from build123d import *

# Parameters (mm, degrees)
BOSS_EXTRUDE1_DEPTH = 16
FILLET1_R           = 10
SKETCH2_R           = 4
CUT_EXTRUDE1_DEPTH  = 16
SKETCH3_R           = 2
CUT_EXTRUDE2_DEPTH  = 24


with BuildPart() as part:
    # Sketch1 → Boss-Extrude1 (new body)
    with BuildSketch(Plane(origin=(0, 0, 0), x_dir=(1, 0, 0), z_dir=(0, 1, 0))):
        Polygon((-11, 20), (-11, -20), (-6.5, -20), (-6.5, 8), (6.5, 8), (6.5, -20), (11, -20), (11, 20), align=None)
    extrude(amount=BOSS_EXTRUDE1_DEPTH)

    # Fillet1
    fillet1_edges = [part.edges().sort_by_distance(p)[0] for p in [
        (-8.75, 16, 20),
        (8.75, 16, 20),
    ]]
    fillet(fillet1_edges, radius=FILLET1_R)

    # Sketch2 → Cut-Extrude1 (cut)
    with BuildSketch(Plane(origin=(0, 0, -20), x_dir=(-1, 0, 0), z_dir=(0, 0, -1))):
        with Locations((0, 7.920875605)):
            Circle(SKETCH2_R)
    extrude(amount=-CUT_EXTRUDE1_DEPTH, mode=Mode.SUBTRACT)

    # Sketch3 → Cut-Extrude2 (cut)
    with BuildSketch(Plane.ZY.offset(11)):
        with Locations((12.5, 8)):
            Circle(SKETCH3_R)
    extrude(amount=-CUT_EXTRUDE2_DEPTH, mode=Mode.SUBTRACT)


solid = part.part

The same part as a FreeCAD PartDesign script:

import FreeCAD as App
import Part
import Sketcher

V = App.Vector
Q = App.Units.Quantity


def edges_at(feature, points):
    """Names of the edges that pass closest to the given points."""
    edges = feature.Shape.Edges
    near = lambda p: min(range(len(edges)), key=lambda i: edges[i].distToShape(Part.Vertex(*p))[0])
    return sorted({f"Edge{near(p) + 1}" for p in points})


def add_polygon(sketch, points):
    """Adds a closed chain of lines whose ends are joined by coincident constraints."""
    first, n = sketch.GeometryCount, len(points)
    for a, b in zip(points, points[1:] + points[:1]):
        sketch.addGeometry(Part.LineSegment(App.Vector(*a, 0), App.Vector(*b, 0)), False)
    for i in range(n):
        sketch.addConstraint(Sketcher.Constraint("Coincident", first + i, 2, first + (i + 1) % n, 1))

doc = App.newDocument("Part")
params = doc.addObject("Spreadsheet::Sheet", "Params")
for row, (alias, value) in enumerate([
    ("sketch1_width", "13 mm"),
    ("sketch1_width2", "22 mm"),
    ("sketch1_height", "40 mm"),
    ("sketch1_height2", "28 mm"),
    ("pad1_length", "16 mm"),
    ("fillet_radius", "10 mm"),
    ("sketch2_diameter", "8 mm"),
    ("pocket1_length", "16 mm"),
    ("sketch3_diameter", "4 mm"),
    ("pocket2_length", "24 mm"),
], start=1):
    params.set(f"A{row}", alias)
    params.set(f"B{row}", "=" + value)
    params.setAlias(f"B{row}", alias)

body = doc.addObject("PartDesign::Body", "Body")

sketch1 = doc.addObject("Sketcher::SketchObject", "Sketch")
body.addObject(sketch1)
sketch1.AttachmentSupport = (doc.XZ_Plane, [""])
sketch1.MapMode = "FlatFace"
add_polygon(sketch1, [(-11, -20), (-11, 20), (-6.5, 20), (-6.5, -8), (6.5, -8), (6.5, 20), (11, 20), (11, -20)])
sketch1.addConstraint(Sketcher.Constraint("Vertical", 0))
sketch1.addConstraint(Sketcher.Constraint("Horizontal", 1))
sketch1.addConstraint(Sketcher.Constraint("Vertical", 2))
sketch1.addConstraint(Sketcher.Constraint("Horizontal", 3))
sketch1.addConstraint(Sketcher.Constraint("Vertical", 4))
sketch1.addConstraint(Sketcher.Constraint("Horizontal", 5))
sketch1.addConstraint(Sketcher.Constraint("Vertical", 6))
sketch1.addConstraint(Sketcher.Constraint("Horizontal", 7))
sketch1.addConstraint(Sketcher.Constraint("Symmetric", 0, 2, 6, 2, -1, 1))
sketch1.addConstraint(Sketcher.Constraint("Symmetric", 1, 2, 4, 2, -2))
sketch1.addConstraint(Sketcher.Constraint("DistanceX", 3, 1, 3, 2, Q("13 mm")))
sketch1.addConstraint(Sketcher.Constraint("DistanceX", 7, 2, 7, 1, Q("22 mm")))
sketch1.addConstraint(Sketcher.Constraint("DistanceY", 0, 1, 0, 2, Q("40 mm")))
sketch1.addConstraint(Sketcher.Constraint("DistanceY", 2, 2, 2, 1, Q("28 mm")))
sketch1.setExpression("Constraints[18]", "Params.sketch1_width")
sketch1.setExpression("Constraints[19]", "Params.sketch1_width2")
sketch1.setExpression("Constraints[20]", "Params.sketch1_height")
sketch1.setExpression("Constraints[21]", "Params.sketch1_height2")
pad1 = doc.addObject("PartDesign::Pad", "Pad")
body.addObject(pad1)
pad1.Profile = sketch1
pad1.setExpression("Length", "Params.pad1_length")
pad1.Reversed = True
doc.recompute()

fillet = doc.addObject("PartDesign::Fillet", "Fillet")
body.addObject(fillet)
fillet.Base = (pad1, edges_at(pad1, [(-8.75, 16, 20), (8.75, 16, 20)]))
fillet.setExpression("Radius", "Params.fillet_radius")

sketch2 = doc.addObject("Sketcher::SketchObject", "Sketch001")
body.addObject(sketch2)
sketch2.AttachmentSupport = (doc.XY_Plane, [""])
sketch2.MapMode = "FlatFace"
sketch2.AttachmentOffset = App.Placement(V(0, 0, -20), App.Rotation())
sketch2.addGeometry(Part.Circle(V(0, 7.920876, 0), V(0, 0, 1), 4), False)
sketch2.addConstraint(Sketcher.Constraint("PointOnObject", 0, 3, -2))
sketch2.addConstraint(Sketcher.Constraint("Diameter", 0, Q("8 mm")))
sketch2.addConstraint(Sketcher.Constraint("DistanceY", -1, 1, 0, 3, Q("7.920876 mm")))
sketch2.setExpression("Constraints[1]", "Params.sketch2_diameter")
pocket1 = doc.addObject("PartDesign::Pocket", "Pocket")
body.addObject(pocket1)
pocket1.Profile = sketch2
pocket1.setExpression("Length", "Params.pocket1_length")
pocket1.Reversed = True

sketch3 = doc.addObject("Sketcher::SketchObject", "Sketch002")
body.addObject(sketch3)
sketch3.AttachmentSupport = (doc.YZ_Plane, [""])
sketch3.MapMode = "FlatFace"
sketch3.AttachmentOffset = App.Placement(V(0, 0, -11), App.Rotation())
sketch3.addGeometry(Part.Circle(V(8, 12.5, 0), V(0, 0, 1), 2), False)
sketch3.addConstraint(Sketcher.Constraint("Diameter", 0, Q("4 mm")))
sketch3.addConstraint(Sketcher.Constraint("DistanceX", -1, 1, 0, 3, Q("8 mm")))
sketch3.addConstraint(Sketcher.Constraint("DistanceY", -1, 1, 0, 3, Q("12.5 mm")))
sketch3.setExpression("Constraints[0]", "Params.sketch3_diameter")
pocket2 = doc.addObject("PartDesign::Pocket", "Pocket001")
body.addObject(pocket2)
pocket2.Profile = sketch3
pocket2.setExpression("Length", "Params.pocket2_length")
pocket2.Reversed = True

doc.recompute()
